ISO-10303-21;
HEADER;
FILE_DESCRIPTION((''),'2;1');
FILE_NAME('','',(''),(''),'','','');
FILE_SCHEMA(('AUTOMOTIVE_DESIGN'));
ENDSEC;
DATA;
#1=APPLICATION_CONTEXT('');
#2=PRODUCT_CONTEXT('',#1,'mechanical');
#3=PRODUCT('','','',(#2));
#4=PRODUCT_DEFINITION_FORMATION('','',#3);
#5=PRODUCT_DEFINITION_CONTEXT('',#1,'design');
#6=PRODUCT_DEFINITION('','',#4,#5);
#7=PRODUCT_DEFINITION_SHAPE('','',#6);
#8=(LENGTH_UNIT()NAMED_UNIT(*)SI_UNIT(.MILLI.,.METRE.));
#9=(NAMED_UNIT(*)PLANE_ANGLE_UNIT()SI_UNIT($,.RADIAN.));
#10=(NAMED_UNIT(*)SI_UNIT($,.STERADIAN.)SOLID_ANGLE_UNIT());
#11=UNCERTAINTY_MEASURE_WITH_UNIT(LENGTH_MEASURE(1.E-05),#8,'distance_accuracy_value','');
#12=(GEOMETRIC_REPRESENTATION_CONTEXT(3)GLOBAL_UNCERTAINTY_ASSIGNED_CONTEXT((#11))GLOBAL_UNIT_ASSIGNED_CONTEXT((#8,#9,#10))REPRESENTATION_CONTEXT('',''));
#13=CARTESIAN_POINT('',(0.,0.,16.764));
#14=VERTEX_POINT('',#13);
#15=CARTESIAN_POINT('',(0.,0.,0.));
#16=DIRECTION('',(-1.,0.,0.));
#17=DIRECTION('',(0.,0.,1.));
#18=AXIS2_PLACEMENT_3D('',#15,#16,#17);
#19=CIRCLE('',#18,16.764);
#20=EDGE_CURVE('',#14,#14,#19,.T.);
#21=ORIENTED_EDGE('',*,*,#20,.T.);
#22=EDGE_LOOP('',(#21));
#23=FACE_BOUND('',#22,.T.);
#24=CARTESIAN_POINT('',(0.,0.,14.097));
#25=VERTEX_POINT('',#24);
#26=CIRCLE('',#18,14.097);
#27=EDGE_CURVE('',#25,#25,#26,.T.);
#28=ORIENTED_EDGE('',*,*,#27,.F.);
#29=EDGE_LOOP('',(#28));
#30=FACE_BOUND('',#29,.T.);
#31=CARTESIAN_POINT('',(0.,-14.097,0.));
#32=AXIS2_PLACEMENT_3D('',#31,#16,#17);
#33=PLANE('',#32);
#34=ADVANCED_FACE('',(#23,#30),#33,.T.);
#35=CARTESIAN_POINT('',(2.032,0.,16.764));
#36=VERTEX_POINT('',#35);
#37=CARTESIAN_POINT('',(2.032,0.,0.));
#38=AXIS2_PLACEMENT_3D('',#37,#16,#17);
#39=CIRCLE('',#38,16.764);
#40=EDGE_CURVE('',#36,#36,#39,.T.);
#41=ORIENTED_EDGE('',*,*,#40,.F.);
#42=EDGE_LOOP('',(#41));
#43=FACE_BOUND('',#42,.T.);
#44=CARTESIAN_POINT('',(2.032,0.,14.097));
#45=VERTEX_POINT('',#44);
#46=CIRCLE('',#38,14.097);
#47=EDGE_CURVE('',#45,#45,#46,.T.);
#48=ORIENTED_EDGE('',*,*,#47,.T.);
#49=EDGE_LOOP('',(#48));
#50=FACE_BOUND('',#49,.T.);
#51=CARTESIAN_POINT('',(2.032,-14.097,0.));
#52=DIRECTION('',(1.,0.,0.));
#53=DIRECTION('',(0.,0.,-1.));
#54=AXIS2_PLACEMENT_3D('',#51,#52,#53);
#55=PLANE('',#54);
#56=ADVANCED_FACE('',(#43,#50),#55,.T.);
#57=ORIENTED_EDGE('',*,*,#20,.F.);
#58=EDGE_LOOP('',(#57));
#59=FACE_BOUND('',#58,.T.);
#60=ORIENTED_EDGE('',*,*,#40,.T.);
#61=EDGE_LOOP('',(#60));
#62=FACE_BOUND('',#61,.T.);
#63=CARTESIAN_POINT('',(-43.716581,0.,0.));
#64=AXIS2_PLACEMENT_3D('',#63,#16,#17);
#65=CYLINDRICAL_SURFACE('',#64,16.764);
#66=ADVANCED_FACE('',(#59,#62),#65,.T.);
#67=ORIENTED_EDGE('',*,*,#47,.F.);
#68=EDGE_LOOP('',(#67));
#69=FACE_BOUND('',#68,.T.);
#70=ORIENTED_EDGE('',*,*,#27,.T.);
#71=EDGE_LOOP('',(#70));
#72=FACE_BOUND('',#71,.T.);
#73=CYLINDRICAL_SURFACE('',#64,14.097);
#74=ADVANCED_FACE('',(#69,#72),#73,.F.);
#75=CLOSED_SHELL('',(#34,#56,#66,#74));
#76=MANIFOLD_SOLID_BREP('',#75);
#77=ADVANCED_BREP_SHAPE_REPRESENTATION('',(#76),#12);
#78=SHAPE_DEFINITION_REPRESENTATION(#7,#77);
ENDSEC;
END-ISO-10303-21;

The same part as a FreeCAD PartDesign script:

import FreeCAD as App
import Part
import Sketcher

V = App.Vector
Q = App.Units.Quantity


def add_polygon(sketch, points):
    """Adds a closed chain of lines whose ends are joined by coincident constraints."""
    first, n = sketch.GeometryCount, len(points)
    for a, b in zip(points, points[1:] + points[:1]):
        sketch.addGeometry(Part.LineSegment(App.Vector(*a, 0), App.Vector(*b, 0)), False)
    for i in range(n):
        sketch.addConstraint(Sketcher.Constraint("Coincident", first + i, 2, first + (i + 1) % n, 1))

doc = App.newDocument("Part")
body = doc.addObject("PartDesign::Body", "Body")

# Sketch on XY plane
sketch1 = body.newObject("Sketcher::SketchObject", "Sketch")
sketch1.AttachmentSupport = (doc.getObject("XY_Plane"), [""])
sketch1.MapMode = "FlatFace"
add_polygon(sketch1, [(0, -14.1), (0, -16.8), (2, -16.8), (2, -14.1)])  # lines 0-3
sketch1.addConstraint([
    Sketcher.Constraint("Vertical", 0),
    Sketcher.Constraint("Horizontal", 1),
    Sketcher.Constraint("Vertical", 2),
    Sketcher.Constraint("Horizontal", 3),
    Sketcher.Constraint("PointOnObject", 0, 2, -2),
    Sketcher.Constraint("DistanceX", 1, 1, 1, 2, Q("0.08 in")),
    Sketcher.Constraint("DistanceY", 0, 2, 0, 1, Q("0.105 in")),
    Sketcher.Constraint("DistanceY", 0, 2, -1, 1, Q("0.66 in")),
])
revolution = body.newObject("PartDesign::Revolution", "Revolution")
revolution.Profile = sketch1
revolution.ReferenceAxis = (sketch1, ["H_Axis"])
revolution.Angle = 360

doc.recompute()
